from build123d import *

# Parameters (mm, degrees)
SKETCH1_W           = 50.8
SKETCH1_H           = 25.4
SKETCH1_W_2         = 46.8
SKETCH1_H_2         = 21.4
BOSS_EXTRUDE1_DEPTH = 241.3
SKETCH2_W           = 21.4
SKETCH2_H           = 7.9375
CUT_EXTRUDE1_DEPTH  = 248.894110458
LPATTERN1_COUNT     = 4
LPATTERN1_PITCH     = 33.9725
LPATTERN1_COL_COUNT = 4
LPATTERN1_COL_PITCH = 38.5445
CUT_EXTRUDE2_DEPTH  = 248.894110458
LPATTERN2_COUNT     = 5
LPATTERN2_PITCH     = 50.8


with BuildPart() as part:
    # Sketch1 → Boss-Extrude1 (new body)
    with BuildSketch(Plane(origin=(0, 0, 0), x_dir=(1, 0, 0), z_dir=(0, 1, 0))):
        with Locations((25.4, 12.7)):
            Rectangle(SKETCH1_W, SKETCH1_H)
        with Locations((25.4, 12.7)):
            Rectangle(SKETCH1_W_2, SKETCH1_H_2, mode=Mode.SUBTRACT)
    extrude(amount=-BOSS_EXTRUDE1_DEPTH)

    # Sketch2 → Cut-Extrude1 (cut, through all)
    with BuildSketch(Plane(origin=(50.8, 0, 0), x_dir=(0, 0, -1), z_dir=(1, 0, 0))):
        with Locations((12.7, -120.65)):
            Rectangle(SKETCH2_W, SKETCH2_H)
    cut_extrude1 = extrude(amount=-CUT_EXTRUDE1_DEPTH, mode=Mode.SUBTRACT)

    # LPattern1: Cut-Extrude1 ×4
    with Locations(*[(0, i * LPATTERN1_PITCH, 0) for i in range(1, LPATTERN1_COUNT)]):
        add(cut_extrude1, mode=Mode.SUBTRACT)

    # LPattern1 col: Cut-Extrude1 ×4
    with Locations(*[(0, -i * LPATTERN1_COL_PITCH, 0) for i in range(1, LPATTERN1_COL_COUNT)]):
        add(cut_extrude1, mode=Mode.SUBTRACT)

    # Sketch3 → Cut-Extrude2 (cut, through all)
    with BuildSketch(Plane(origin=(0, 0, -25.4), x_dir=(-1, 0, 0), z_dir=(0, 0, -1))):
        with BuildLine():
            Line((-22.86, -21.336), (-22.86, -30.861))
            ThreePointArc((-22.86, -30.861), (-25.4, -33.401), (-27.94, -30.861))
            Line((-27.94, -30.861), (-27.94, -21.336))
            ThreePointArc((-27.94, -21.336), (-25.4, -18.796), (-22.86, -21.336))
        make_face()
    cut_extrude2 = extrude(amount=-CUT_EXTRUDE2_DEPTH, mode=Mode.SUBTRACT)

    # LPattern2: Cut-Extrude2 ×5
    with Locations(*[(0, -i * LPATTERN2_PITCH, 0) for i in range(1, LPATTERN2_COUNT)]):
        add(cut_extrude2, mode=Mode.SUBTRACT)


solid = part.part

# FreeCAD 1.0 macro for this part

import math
import FreeCAD as App
import Part
import Sketcher
Q = App.Units.Quantity


def add_polygon(sketch, points):
    """Adds a closed chain of lines whose ends are joined by coincident constraints."""
    first, n = sketch.GeometryCount, len(points)
    for a, b in zip(points, points[1:] + points[:1]):
        sketch.addGeometry(Part.LineSegment(App.Vector(*a, 0), App.Vector(*b, 0)), False)
    for i in range(n):
        sketch.addConstraint(Sketcher.Constraint("Coincident", first + i, 2, first + (i + 1) % n, 1))

doc = App.newDocument("Part")
body = doc.addObject("PartDesign::Body", "Body")

sketch1 = body.newObject("Sketcher::SketchObject", "Sketch")
sketch1.AttachmentSupport = (doc.getObject("XZ_Plane"), [""])
sketch1.MapMode = "FlatFace"
add_polygon(sketch1, [(0, -25), (0, 0), (51, 0), (51, -25)])
add_polygon(sketch1, [(49, -2), (2, -2), (2, -23), (49, -23)])
sketch1.addConstraint([
    Sketcher.Constraint("Vertical", 0),
    Sketcher.Constraint("Horizontal", 1),
    Sketcher.Constraint("Vertical", 2),
    Sketcher.Constraint("Horizontal", 3),
    Sketcher.Constraint("Horizontal", 4),
    Sketcher.Constraint("Vertical", 5),
    Sketcher.Constraint("Horizontal", 6),
    Sketcher.Constraint("Vertical", 7),
    Sketcher.Constraint("Coincident", 0, 2, -1, 1),
    Sketcher.Constraint("DistanceX", 1, 1, 1, 2, Q("2 in")),
    Sketcher.Constraint("DistanceY", 0, 1, 0, 2, Q("1 in")),
    Sketcher.Constraint("DistanceX", 4, 2, 4, 1, Q("46.8 mm")),
    Sketcher.Constraint("DistanceY", 5, 2, 5, 1, Q("21.4 mm")),
    Sketcher.Constraint("DistanceX", -1, 1, 4, 2, Q("2 mm")),
    Sketcher.Constraint("DistanceY", 4, 2, -1, 1, Q("2 mm")),
])
pad1 = body.newObject("PartDesign::Pad", "Pad")
pad1.Profile = sketch1
pad1.Length = Q("9.5 in")

sketch2 = body.newObject("Sketcher::SketchObject", "Sketch001")
sketch2.AttachmentSupport = (doc.getObject("YZ_Plane"), [""])
sketch2.MapMode = "FlatFace"
sketch2.AttachmentOffset = App.Placement(App.Vector(0, 0, 2 * 25.4), App.Rotation())
add_polygon(sketch2, [(-117, -2), (-125, -2), (-125, -23), (-117, -23)])
sketch2.addConstraint([
    Sketcher.Constraint("Horizontal", 0),
    Sketcher.Constraint("Vertical", 1),
    Sketcher.Constraint("Horizontal", 2),
    Sketcher.Constraint("Vertical", 3),
    Sketcher.Constraint("DistanceX", 0, 2, 0, 1, Q("0.3125 in")),
    Sketcher.Constraint("DistanceX", 0, 2, -1, 1, Q("4.90625 in")),
    Sketcher.Constraint("DistanceY", 1, 2, 1, 1, Q("21.4 mm")),
    Sketcher.Constraint("DistanceY", 0, 2, -1, 1, Q("2 mm")),
])
pocket1 = body.newObject("PartDesign::Pocket", "Pocket")
pocket1.Profile = sketch2
pocket1.Type = "ThroughAll"
doc.recompute()

linearpattern = body.newObject("PartDesign::LinearPattern", "LinearPattern")
linearpattern.Originals = [pocket1]
linearpattern.Direction = (doc.getObject("Y_Axis"), [""])
linearpattern.Mode = "offset"
linearpattern.Offset = Q("1.3375 in")
linearpattern.Occurrences = 4
body.Tip = linearpattern
doc.recompute()

linearpattern2 = body.newObject("PartDesign::LinearPattern", "LinearPattern001")
linearpattern2.Originals = [pocket1]
linearpattern2.Direction = (doc.getObject("Y_Axis"), [""])
linearpattern2.Mode = "offset"
linearpattern2.Offset = Q("1.5175 in")
linearpattern2.Occurrences = 4
linearpattern2.Reversed = True
body.Tip = linearpattern2

sketch3 = body.newObject("Sketcher::SketchObject", "Sketch002")
sketch3.AttachmentSupport = (doc.getObject("XY_Plane"), [""])
sketch3.MapMode = "FlatFace"
sketch3.AttachmentOffset = App.Placement(App.Vector(0, 0, -1 * 25.4), App.Rotation())
sketch3.addGeometry([
    Part.LineSegment(App.Vector(22.9, -30.9, 0), App.Vector(22.9, -21.3, 0)),
    Part.ArcOfCircle(Part.Circle(App.Vector(25.4, -21.3, 0), App.Vector(0, 0, 1), 2.5), math.radians(0), math.radians(180)),
    Part.LineSegment(App.Vector(27.9, -21.3, 0), App.Vector(27.9, -30.9, 0)),
    Part.ArcOfCircle(Part.Circle(App.Vector(25.4, -30.9, 0), App.Vector(0, 0, 1), 2.5), math.radians(180), math.radians(360)),
], False)
sketch3.addConstraint([
    Sketcher.Constraint("Tangent", 0, 2, 1, 2),
    Sketcher.Constraint("Tangent", 1, 1, 2, 1),
    Sketcher.Constraint("Tangent", 2, 2, 3, 2),
    Sketcher.Constraint("Tangent", 3, 1, 0, 1),
    Sketcher.Constraint("Vertical", 0),
    Sketcher.Constraint("Vertical", 2),
    Sketcher.Constraint("Radius", 1, Q("0.1 in")),
    Sketcher.Constraint("DistanceX", -1, 1, 1, 3, Q("1 in")),
    Sketcher.Constraint("DistanceY", 0, 1, 0, 2, Q("0.375 in")),
    Sketcher.Constraint("DistanceY", 1, 3, -1, 1, Q("0.84 in")),
])
pocket2 = body.newObject("PartDesign::Pocket", "Pocket001")
pocket2.Profile = sketch3
pocket2.Type = "ThroughAll"
pocket2.Reversed = True
doc.recompute()

linearpattern3 = body.newObject("PartDesign::LinearPattern", "LinearPattern002")
linearpattern3.Originals = [pocket2]
linearpattern3.Direction = (doc.getObject("Y_Axis"), [""])
linearpattern3.Mode = "offset"
linearpattern3.Offset = Q("2 in")
linearpattern3.Occurrences = 5
linearpattern3.Reversed = True
body.Tip = linearpattern3

doc.recompute()
